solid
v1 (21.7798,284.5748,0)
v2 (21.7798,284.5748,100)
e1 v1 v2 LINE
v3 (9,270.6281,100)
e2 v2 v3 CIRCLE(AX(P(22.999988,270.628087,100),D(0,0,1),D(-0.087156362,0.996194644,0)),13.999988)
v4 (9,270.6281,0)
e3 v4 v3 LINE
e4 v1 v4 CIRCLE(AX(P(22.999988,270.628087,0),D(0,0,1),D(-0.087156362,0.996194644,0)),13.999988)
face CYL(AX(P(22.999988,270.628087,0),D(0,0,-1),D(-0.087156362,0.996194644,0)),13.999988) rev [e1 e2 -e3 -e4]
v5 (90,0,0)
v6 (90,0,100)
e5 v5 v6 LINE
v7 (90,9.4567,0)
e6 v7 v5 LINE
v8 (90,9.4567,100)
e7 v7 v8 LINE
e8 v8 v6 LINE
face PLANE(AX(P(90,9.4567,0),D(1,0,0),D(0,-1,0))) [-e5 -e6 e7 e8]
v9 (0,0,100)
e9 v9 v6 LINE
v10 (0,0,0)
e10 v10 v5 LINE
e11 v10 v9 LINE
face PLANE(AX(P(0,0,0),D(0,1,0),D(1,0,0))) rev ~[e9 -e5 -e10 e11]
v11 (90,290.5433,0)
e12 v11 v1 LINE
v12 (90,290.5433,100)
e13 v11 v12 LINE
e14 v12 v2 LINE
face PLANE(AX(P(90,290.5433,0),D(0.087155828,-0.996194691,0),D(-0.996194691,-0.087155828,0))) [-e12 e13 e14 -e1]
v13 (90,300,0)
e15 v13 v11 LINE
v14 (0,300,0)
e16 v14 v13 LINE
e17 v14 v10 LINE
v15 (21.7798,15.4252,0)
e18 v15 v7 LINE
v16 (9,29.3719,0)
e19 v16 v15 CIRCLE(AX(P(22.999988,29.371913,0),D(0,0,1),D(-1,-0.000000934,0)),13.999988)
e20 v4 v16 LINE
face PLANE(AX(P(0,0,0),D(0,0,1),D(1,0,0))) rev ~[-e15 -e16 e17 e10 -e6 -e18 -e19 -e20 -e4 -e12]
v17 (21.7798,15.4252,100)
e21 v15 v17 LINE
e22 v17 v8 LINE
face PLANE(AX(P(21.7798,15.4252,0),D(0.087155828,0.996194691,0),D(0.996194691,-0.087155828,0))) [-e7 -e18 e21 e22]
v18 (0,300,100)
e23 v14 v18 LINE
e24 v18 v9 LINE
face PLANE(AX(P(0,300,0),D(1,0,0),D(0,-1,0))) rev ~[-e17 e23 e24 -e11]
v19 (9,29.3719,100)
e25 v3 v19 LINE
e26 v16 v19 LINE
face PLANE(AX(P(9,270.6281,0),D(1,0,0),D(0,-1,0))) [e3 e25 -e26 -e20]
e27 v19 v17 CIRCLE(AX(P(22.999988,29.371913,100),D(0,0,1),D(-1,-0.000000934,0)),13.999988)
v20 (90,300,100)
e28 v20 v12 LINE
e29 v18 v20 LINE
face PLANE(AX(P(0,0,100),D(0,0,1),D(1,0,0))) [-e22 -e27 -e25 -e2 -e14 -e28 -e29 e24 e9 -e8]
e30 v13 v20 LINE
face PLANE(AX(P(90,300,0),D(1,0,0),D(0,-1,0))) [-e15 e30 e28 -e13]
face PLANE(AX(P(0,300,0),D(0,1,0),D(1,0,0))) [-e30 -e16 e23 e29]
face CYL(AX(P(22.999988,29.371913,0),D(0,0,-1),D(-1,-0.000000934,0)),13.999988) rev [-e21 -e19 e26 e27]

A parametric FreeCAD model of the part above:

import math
import FreeCAD as App
import Part
import Sketcher

V = App.Vector
Q = App.Units.Quantity

doc = App.newDocument("Part")
params = doc.addObject("Spreadsheet::Sheet", "Params")
for row, (alias, value) in enumerate([
    ("sketch1_radius", "14 mm"),
    ("sketch1_width", "90 mm"),
    ("sketch1_height", "300 mm"),
    ("pad1_length", "100 mm"),
], start=1):
    params.set(f"A{row}", alias)
    params.set(f"B{row}", "=" + value)
    params.setAlias(f"B{row}", alias)

body = doc.addObject("PartDesign::Body", "Body")

# Sketch on XY plane
sketch1 = doc.addObject("Sketcher::SketchObject", "Sketch")
body.addObject(sketch1)
sketch1.AttachmentSupport = (doc.XY_Plane, [""])
sketch1.MapMode = "FlatFace"
sketch1.addGeometry([
    Part.LineSegment(V(0, 300, 0), V(0, 0, 0)),  # 0
    Part.LineSegment(V(0, 0, 0), V(90, 0, 0)),  # 1
    Part.LineSegment(V(90, 0, 0), V(90, 9.4567, 0)),  # 2
    Part.LineSegment(V(90, 9.4567, 0), V(21.7798, 15.4252, 0)),  # 3
    Part.ArcOfCircle(Part.Circle(V(23, 29.3719, 0), V(0, 0, 1), 14), math.radians(180), math.radians(264.999911)),  # 4
    Part.LineSegment(V(9, 29.3719, 0), V(9, 270.6281, 0)),  # 5
    Part.ArcOfCircle(Part.Circle(V(23, 270.6281, 0), V(0, 0, 1), 13.999976), math.radians(95.000089), math.radians(180)),  # 6
    Part.LineSegment(V(21.7798, 284.5748, 0), V(90, 290.5433, 0)),  # 7
    Part.LineSegment(V(90, 290.5433, 0), V(90, 300, 0)),  # 8
    Part.LineSegment(V(90, 300, 0), V(0, 300, 0)),  # 9
], False)
sketch1.addConstraint([
    Sketcher.Constraint("Coincident", 0, 2, 1, 1),
    Sketcher.Constraint("Coincident", 1, 2, 2, 1),
    Sketcher.Constraint("Coincident", 2, 2, 3, 1),
    Sketcher.Constraint("Tangent", 3, 2, 4, 2),
    Sketcher.Constraint("Tangent", 4, 1, 5, 1),
    Sketcher.Constraint("Tangent", 5, 2, 6, 2),
    Sketcher.Constraint("Tangent", 6, 1, 7, 1),
    Sketcher.Constraint("Coincident", 7, 2, 8, 1),
    Sketcher.Constraint("Coincident", 8, 2, 9, 1),
    Sketcher.Constraint("Coincident", 9, 2, 0, 1),
    Sketcher.Constraint("Vertical", 0),
    Sketcher.Constraint("Horizontal", 1),
    Sketcher.Constraint("Vertical", 2),
    Sketcher.Constraint("Vertical", 5),
    Sketcher.Constraint("Vertical", 8),
    Sketcher.Constraint("Horizontal", 9),
    Sketcher.Constraint("Coincident", 0, 2, -1, 1),
    Sketcher.Constraint("Equal", 4, 6),
    Sketcher.Constraint("Vertical", 3, 2, 6, 1),
    Sketcher.Constraint("Vertical", 2, 2, 7, 2),
    Sketcher.Constraint("Equal", 2, 8),
    Sketcher.Constraint("Radius", 4, 14.0),
    Sketcher.Constraint("DistanceX", 1, 1, 1, 2, 90.0),
    Sketcher.Constraint("DistanceY", 0, 2, 0, 1, 300.0),
    Sketcher.Constraint("Angle", 3, Q("175 deg")),
    Sketcher.Constraint("DistanceX", -1, 1, 4, 3, 23.0),
    Sketcher.Constraint("DistanceY", 2, 1, 2, 2, 9.4567),
])
sketch1.setExpression("Constraints[21]", "Params.sketch1_radius")
sketch1.setExpression("Constraints[22]", "Params.sketch1_width")
sketch1.setExpression("Constraints[23]", "Params.sketch1_height")
pad1 = doc.addObject("PartDesign::Pad", "Pad")
body.addObject(pad1)
pad1.Profile = sketch1
pad1.setExpression("Length", "Params.pad1_length")

doc.recompute()
